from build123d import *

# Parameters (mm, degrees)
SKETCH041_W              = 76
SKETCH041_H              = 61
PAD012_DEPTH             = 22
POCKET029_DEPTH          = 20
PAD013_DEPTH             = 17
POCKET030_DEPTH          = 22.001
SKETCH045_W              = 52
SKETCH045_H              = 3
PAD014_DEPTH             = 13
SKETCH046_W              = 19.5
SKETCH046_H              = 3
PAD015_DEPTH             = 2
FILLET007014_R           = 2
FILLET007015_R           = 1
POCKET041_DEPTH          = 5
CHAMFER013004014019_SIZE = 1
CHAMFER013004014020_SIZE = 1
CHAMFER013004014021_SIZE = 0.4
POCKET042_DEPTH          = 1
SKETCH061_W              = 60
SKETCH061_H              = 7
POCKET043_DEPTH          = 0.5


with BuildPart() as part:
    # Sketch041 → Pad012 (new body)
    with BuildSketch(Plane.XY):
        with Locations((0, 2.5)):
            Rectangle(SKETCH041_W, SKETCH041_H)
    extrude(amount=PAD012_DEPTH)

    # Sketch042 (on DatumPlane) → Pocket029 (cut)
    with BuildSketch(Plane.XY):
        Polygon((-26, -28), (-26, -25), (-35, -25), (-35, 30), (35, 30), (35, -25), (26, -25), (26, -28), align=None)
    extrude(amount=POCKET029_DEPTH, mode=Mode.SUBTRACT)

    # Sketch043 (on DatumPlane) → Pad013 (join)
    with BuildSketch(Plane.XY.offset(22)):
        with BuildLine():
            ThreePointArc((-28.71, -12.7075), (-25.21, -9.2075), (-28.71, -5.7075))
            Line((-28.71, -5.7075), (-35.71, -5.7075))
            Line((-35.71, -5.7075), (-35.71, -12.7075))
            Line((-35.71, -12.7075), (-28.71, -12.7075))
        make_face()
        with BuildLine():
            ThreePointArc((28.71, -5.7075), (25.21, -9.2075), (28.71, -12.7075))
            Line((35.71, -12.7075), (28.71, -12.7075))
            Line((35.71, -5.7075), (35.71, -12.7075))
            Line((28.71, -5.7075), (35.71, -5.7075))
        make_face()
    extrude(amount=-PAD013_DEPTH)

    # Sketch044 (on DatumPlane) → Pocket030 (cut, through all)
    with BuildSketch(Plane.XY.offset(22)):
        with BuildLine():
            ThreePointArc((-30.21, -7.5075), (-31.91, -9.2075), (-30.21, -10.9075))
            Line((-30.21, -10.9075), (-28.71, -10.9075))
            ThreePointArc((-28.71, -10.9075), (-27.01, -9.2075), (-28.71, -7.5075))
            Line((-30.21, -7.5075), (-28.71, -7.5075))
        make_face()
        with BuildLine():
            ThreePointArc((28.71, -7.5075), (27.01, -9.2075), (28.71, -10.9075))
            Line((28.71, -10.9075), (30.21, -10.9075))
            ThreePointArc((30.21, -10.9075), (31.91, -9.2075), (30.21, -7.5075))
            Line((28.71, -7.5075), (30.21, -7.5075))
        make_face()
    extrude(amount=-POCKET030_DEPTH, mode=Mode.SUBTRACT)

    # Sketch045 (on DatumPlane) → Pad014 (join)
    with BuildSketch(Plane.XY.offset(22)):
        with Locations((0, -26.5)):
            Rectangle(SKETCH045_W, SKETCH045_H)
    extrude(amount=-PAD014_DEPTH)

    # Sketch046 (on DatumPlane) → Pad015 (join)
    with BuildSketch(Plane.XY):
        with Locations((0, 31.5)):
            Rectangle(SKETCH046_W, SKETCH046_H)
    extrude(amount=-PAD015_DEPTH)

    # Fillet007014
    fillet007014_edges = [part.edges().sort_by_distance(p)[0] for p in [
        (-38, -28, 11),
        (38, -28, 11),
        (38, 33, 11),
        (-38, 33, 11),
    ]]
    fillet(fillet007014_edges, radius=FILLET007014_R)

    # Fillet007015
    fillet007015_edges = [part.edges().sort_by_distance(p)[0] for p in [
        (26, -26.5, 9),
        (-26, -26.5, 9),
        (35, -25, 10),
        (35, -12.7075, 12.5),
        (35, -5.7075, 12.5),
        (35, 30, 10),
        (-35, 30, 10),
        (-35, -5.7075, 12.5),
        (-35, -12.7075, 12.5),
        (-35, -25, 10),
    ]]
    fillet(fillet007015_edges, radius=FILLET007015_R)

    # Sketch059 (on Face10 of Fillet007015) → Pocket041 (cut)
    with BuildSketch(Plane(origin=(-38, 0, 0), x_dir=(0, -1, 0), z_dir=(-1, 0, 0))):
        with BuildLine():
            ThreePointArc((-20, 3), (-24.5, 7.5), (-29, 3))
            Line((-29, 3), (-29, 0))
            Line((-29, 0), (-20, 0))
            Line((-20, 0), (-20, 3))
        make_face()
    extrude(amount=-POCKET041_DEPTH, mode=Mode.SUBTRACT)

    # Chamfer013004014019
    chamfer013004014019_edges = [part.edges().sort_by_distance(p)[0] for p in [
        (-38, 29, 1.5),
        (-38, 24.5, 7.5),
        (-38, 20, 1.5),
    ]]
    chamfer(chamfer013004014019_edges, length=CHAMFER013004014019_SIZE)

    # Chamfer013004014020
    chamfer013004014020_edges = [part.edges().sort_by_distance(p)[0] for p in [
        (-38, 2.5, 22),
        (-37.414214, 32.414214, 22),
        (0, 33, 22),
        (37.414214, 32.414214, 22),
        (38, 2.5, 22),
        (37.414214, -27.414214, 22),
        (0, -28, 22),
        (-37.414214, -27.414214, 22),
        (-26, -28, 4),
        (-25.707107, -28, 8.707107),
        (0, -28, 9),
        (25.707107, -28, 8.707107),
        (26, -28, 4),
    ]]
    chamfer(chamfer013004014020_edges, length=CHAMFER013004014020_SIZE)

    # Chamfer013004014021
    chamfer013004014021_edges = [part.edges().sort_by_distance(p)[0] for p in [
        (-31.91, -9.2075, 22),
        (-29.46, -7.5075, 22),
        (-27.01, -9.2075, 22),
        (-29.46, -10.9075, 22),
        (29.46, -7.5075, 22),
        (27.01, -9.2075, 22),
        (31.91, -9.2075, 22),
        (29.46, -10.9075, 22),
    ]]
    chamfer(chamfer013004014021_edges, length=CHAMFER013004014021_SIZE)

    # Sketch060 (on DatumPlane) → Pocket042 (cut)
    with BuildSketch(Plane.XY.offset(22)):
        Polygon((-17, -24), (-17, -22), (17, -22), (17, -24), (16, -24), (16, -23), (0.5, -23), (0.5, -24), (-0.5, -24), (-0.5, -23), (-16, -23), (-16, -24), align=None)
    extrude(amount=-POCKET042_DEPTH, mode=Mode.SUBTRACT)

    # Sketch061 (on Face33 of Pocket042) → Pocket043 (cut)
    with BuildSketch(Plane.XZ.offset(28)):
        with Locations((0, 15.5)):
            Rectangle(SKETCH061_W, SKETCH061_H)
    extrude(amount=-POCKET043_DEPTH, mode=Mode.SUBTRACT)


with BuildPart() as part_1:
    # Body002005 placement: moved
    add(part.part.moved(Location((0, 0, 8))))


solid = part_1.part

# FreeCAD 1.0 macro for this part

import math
import FreeCAD as App
import Part
import Sketcher
from FreeCAD import Vector
Q = App.Units.Quantity


def edges_at(feature, points):
    """Names of the edges that pass closest to the given points."""
    edges = feature.Shape.Edges
    near = lambda p: min(range(len(edges)), key=lambda i: edges[i].distToShape(Part.Vertex(*p))[0])
    return sorted({f"Edge{near(p) + 1}" for p in points})

doc = App.newDocument("Part")
body = doc.addObject("PartDesign::Body", "Body")

# Sketch on XY plane
sketch1 = body.newObject("Sketcher::SketchObject", "Sketch")
sketch1.AttachmentSupport = (doc.getObject("XY_Plane"), [""])
sketch1.MapMode = "FlatFace"
sketch1.addGeometry([
    Part.LineSegment(Vector(-38, 33, 0), Vector(-38, -28, 0)),
    Part.LineSegment(Vector(-38, -28, 0), Vector(38, -28, 0)),
    Part.LineSegment(Vector(38, -28, 0), Vector(38, 33, 0)),
    Part.LineSegment(Vector(38, 33, 0), Vector(-38, 33, 0)),
], False)
sketch1.addConstraint([
    Sketcher.Constraint("Coincident", 0, 2, 1, 1),
    Sketcher.Constraint("Coincident", 1, 2, 2, 1),
    Sketcher.Constraint("Coincident", 2, 2, 3, 1),
    Sketcher.Constraint("Coincident", 3, 2, 0, 1),
    Sketcher.Constraint("Vertical", 0),
    Sketcher.Constraint("Horizontal", 1),
    Sketcher.Constraint("Vertical", 2),
    Sketcher.Constraint("Horizontal", 3),
    Sketcher.Constraint("DistanceX", 1, 1, 1, 2, Q("76 mm")),
    Sketcher.Constraint("DistanceY", 0, 2, 0, 1, Q("61 mm")),
    Sketcher.Constraint("DistanceX", 0, 2, -1, 1, Q("38 mm")),
    Sketcher.Constraint("DistanceY", 0, 2, -1, 1, Q("28 mm")),
])
pad1 = body.newObject("PartDesign::Pad", "Pad")
pad1.Profile = sketch1
pad1.Length = 22

# Sketch on XY plane
sketch2 = body.newObject("Sketcher::SketchObject", "Sketch001")
sketch2.AttachmentSupport = (doc.getObject("XY_Plane"), [""])
sketch2.MapMode = "FlatFace"
sketch2.addGeometry([
    Part.LineSegment(Vector(-26, -25, 0), Vector(-26, -28, 0)),  # 0
    Part.LineSegment(Vector(-26, -28, 0), Vector(26, -28, 0)),  # 1
    Part.LineSegment(Vector(26, -28, 0), Vector(26, -25, 0)),  # 2
    Part.LineSegment(Vector(26, -25, 0), Vector(35, -25, 0)),  # 3
    Part.LineSegment(Vector(35, -25, 0), Vector(35, 30, 0)),  # 4
    Part.LineSegment(Vector(35, 30, 0), Vector(-35, 30, 0)),  # 5
    Part.LineSegment(Vector(-35, 30, 0), Vector(-35, -25, 0)),  # 6
    Part.LineSegment(Vector(-35, -25, 0), Vector(-26, -25, 0)),  # 7
], False)
sketch2.addConstraint([
    Sketcher.Constraint("Coincident", 0, 2, 1, 1),
    Sketcher.Constraint("Coincident", 1, 2, 2, 1),
    Sketcher.Constraint("Coincident", 2, 2, 3, 1),
    Sketcher.Constraint("Coincident", 3, 2, 4, 1),
    Sketcher.Constraint("Coincident", 4, 2, 5, 1),
    Sketcher.Constraint("Coincident", 5, 2, 6, 1),
    Sketcher.Constraint("Coincident", 6, 2, 7, 1),
    Sketcher.Constraint("Coincident", 7, 2, 0, 1),
    Sketcher.Constraint("Vertical", 0),
    Sketcher.Constraint("Horizontal", 1),
    Sketcher.Constraint("Vertical", 2),
    Sketcher.Constraint("Horizontal", 3),
    Sketcher.Constraint("Vertical", 4),
    Sketcher.Constraint("Horizontal", 5),
    Sketcher.Constraint("Vertical", 6),
    Sketcher.Constraint("Horizontal", 7),
    Sketcher.Constraint("Symmetric", 3, 2, 6, 2, -2),
    Sketcher.Constraint("Equal", 3, 7),
    Sketcher.Constraint("DistanceX", 1, 1, 1, 2, Q("52 mm")),
    Sketcher.Constraint("DistanceX", 3, 1, 3, 2, Q("9 mm")),
    Sketcher.Constraint("DistanceY", 0, 2, 0, 1, Q("3 mm")),
    Sketcher.Constraint("DistanceY", 4, 1, 4, 2, Q("55 mm")),
    Sketcher.Constraint("DistanceY", 0, 2, -1, 1, Q("28 mm")),
])
pocket1 = body.newObject("PartDesign::Pocket", "Pocket")
pocket1.Profile = sketch2
pocket1.Length = 20
pocket1.Reversed = True

# Sketch on XY plane
sketch3 = body.newObject("Sketcher::SketchObject", "Sketch002")
sketch3.AttachmentSupport = (doc.getObject("XY_Plane"), [""])
sketch3.MapMode = "FlatFace"
sketch3.AttachmentOffset = App.Placement(Vector(0, 0, 22), App.Rotation())
sketch3.addGeometry([
    Part.ArcOfCircle(Part.Circle(Vector(-28.7, -9.2, 0), Vector(0, 0, 1), 3.5), math.radians(-90), math.radians(90)),  # 0
    Part.LineSegment(Vector(-28.7, -5.7, 0), Vector(-35.7, -5.7, 0)),  # 1
    Part.LineSegment(Vector(-35.7, -5.7, 0), Vector(-35.7, -12.7, 0)),  # 2
    Part.LineSegment(Vector(-35.7, -12.7, 0), Vector(-28.7, -12.7, 0)),  # 3
    Part.ArcOfCircle(Part.Circle(Vector(28.7, -9.2, 0), Vector(0, 0, 1), 3.5), math.radians(90), math.radians(270)),  # 4
    Part.LineSegment(Vector(28.7, -12.7, 0), Vector(35.7, -12.7, 0)),  # 5
    Part.LineSegment(Vector(35.7, -12.7, 0), Vector(35.7, -5.7, 0)),  # 6
    Part.LineSegment(Vector(35.7, -5.7, 0), Vector(28.7, -5.7, 0)),  # 7
], False)
sketch3.addConstraint([
    Sketcher.Constraint("Tangent", 0, 2, 1, 1),
    Sketcher.Constraint("Coincident", 1, 2, 2, 1),
    Sketcher.Constraint("Coincident", 2, 2, 3, 1),
    Sketcher.Constraint("Tangent", 3, 2, 0, 1),
    Sketcher.Constraint("Tangent", 4, 2, 5, 1),
    Sketcher.Constraint("Coincident", 5, 2, 6, 1),
    Sketcher.Constraint("Coincident", 6, 2, 7, 1),
    Sketcher.Constraint("Tangent", 7, 2, 4, 1),
    Sketcher.Constraint("Horizontal", 1),
    Sketcher.Constraint("Vertical", 2),
    Sketcher.Constraint("Horizontal", 3),
    Sketcher.Constraint("Horizontal", 5),
    Sketcher.Constraint("Vertical", 6),
    Sketcher.Constraint("Horizontal", 7),
    Sketcher.Constraint("Equal", 0, 4),
    Sketcher.Constraint("Symmetric", 0, 3, 4, 3, -2),
    Sketcher.Constraint("Equal", 3, 5),
    Sketcher.Constraint("Equal", 7, 2),
    Sketcher.Constraint("Radius", 0, Q("3.5 mm")),
    Sketcher.Constraint("DistanceX", 0, 3, -1, 1, Q("28.71 mm")),
    Sketcher.Constraint("DistanceY", 0, 3, -1, 1, Q("9.2075 mm")),
])
pad2 = body.newObject("PartDesign::Pad", "Pad001")
pad2.Profile = sketch3
pad2.Length = 17
pad2.Reversed = True

# Sketch on XY plane
sketch4 = body.newObject("Sketcher::SketchObject", "Sketch003")
sketch4.AttachmentSupport = (doc.getObject("XY_Plane"), [""])
sketch4.MapMode = "FlatFace"
sketch4.AttachmentOffset = App.Placement(Vector(0, 0, 22), App.Rotation())
sketch4.addGeometry([
    Part.ArcOfCircle(Part.Circle(Vector(-30.2, -9.2, 0), Vector(0, 0, 1), 1.7), math.radians(90), math.radians(270)),  # 0
    Part.LineSegment(Vector(-30.2, -10.9, 0), Vector(-28.7, -10.9, 0)),  # 1
    Part.ArcOfCircle(Part.Circle(Vector(-28.7, -9.2, 0), Vector(0, 0, 1), 1.7), math.radians(-90), math.radians(90)),  # 2
    Part.LineSegment(Vector(-28.7, -7.5, 0), Vector(-30.2, -7.5, 0)),  # 3
    Part.ArcOfCircle(Part.Circle(Vector(28.7, -9.2, 0), Vector(0, 0, 1), 1.7), math.radians(90), math.radians(270)),  # 4
    Part.LineSegment(Vector(28.7, -10.9, 0), Vector(30.2, -10.9, 0)),  # 5
    Part.ArcOfCircle(Part.Circle(Vector(30.2, -9.2, 0), Vector(0, 0, 1), 1.7), math.radians(-90), math.radians(90)),  # 6
    Part.LineSegment(Vector(30.2, -7.5, 0), Vector(28.7, -7.5, 0)),  # 7
], False)
sketch4.addConstraint([
    Sketcher.Constraint("Tangent", 0, 2, 1, 1),
    Sketcher.Constraint("Tangent", 1, 2, 2, 1),
    Sketcher.Constraint("Tangent", 2, 2, 3, 1),
    Sketcher.Constraint("Tangent", 3, 2, 0, 1),
    Sketcher.Constraint("Tangent", 4, 2, 5, 1),
    Sketcher.Constraint("Tangent", 5, 2, 6, 1),
    Sketcher.Constraint("Tangent", 6, 2, 7, 1),
    Sketcher.Constraint("Tangent", 7, 2, 4, 1),
    Sketcher.Constraint("Horizontal", 1),
    Sketcher.Constraint("Horizontal", 3),
    Sketcher.Constraint("Horizontal", 5),
    Sketcher.Constraint("Horizontal", 7),
    Sketcher.Constraint("Equal", 2, 4),
    Sketcher.Constraint("Symmetric", 2, 3, 4, 3, -2),
    Sketcher.Constraint("Equal", 3, 5),
    Sketcher.Constraint("Radius", 0, Q("1.7 mm")),
    Sketcher.Constraint("DistanceX", 1, 1, 1, 2, Q("1.5 mm")),
    Sketcher.Constraint("DistanceX", 0, 3, -1, 1, Q("30.21 mm")),
    Sketcher.Constraint("DistanceY", 0, 3, -1, 1, Q("9.2075 mm")),
])
pocket2 = body.newObject("PartDesign::Pocket", "Pocket001")
pocket2.Profile = sketch4
pocket2.Type = "ThroughAll"

# Sketch on XY plane
sketch5 = body.newObject("Sketcher::SketchObject", "Sketch004")
sketch5.AttachmentSupport = (doc.getObject("XY_Plane"), [""])
sketch5.MapMode = "FlatFace"
sketch5.AttachmentOffset = App.Placement(Vector(0, 0, 22), App.Rotation())
sketch5.addGeometry([
    Part.LineSegment(Vector(-26, -25, 0), Vector(-26, -28, 0)),
    Part.LineSegment(Vector(-26, -28, 0), Vector(26, -28, 0)),
    Part.LineSegment(Vector(26, -28, 0), Vector(26, -25, 0)),
    Part.LineSegment(Vector(26, -25, 0), Vector(-26, -25, 0)),
], False)
sketch5.addConstraint([
    Sketcher.Constraint("Coincident", 0, 2, 1, 1),
    Sketcher.Constraint("Coincident", 1, 2, 2, 1),
    Sketcher.Constraint("Coincident", 2, 2, 3, 1),
    Sketcher.Constraint("Coincident", 3, 2, 0, 1),
    Sketcher.Constraint("Vertical", 0),
    Sketcher.Constraint("Horizontal", 1),
    Sketcher.Constraint("Vertical", 2),
    Sketcher.Constraint("Horizontal", 3),
    Sketcher.Constraint("DistanceX", 1, 1, 1, 2, Q("52 mm")),
    Sketcher.Constraint("DistanceY", 0, 2, 0, 1, Q("3 mm")),
    Sketcher.Constraint("DistanceX", 0, 2, -1, 1, Q("26 mm")),
    Sketcher.Constraint("DistanceY", 0, 2, -1, 1, Q("28 mm")),
])
pad3 = body.newObject("PartDesign::Pad", "Pad002")
pad3.Profile = sketch5
pad3.Length = 13
pad3.Reversed = True

# Sketch on XY plane
sketch6 = body.newObject("Sketcher::SketchObject", "Sketch005")
sketch6.AttachmentSupport = (doc.getObject("XY_Plane"), [""])
sketch6.MapMode = "FlatFace"
sketch6.addGeometry([
    Part.LineSegment(Vector(-9.8, 33, 0), Vector(-9.8, 30, 0)),
    Part.LineSegment(Vector(-9.8, 30, 0), Vector(9.8, 30, 0)),
    Part.LineSegment(Vector(9.8, 30, 0), Vector(9.8, 33, 0)),
    Part.LineSegment(Vector(9.8, 33, 0), Vector(-9.8, 33, 0)),
], False)
sketch6.addConstraint([
    Sketcher.Constraint("Coincident", 0, 2, 1, 1),
    Sketcher.Constraint("Coincident", 1, 2, 2, 1),
    Sketcher.Constraint("Coincident", 2, 2, 3, 1),
    Sketcher.Constraint("Coincident", 3, 2, 0, 1),
    Sketcher.Constraint("Vertical", 0),
    Sketcher.Constraint("Horizontal", 1),
    Sketcher.Constraint("Vertical", 2),
    Sketcher.Constraint("Horizontal", 3),
    Sketcher.Constraint("DistanceY", 0, 2, 0, 1, Q("3 mm")),
    Sketcher.Constraint("DistanceX", 1, 1, 1, 2, Q("19.5 mm")),
    Sketcher.Constraint("DistanceY", -1, 1, 0, 2, Q("30 mm")),
    Sketcher.Constraint("DistanceX", 0, 2, -1, 1, Q("9.75 mm")),
])
pad4 = body.newObject("PartDesign::Pad", "Pad003")
pad4.Profile = sketch6
pad4.Length = 2
pad4.Reversed = True
doc.recompute()

fillet = body.newObject("PartDesign::Fillet", "Fillet")
fillet.Base = (pad4, edges_at(pad4, [
    (-38, -28, 11),
    (38, -28, 11),
    (38, 33, 11),
    (-38, 33, 11),
]))
fillet.Radius = 2
doc.recompute()

fillet2 = body.newObject("PartDesign::Fillet", "Fillet001")
fillet2.Base = (fillet, edges_at(fillet, [
    (26, -26.5, 9),
    (-26, -26.5, 9),
    (35, -25, 10),
    (35, -12.707, 12.5),
    (35, -5.707, 12.5),
    (35, 30, 10),
    (-35, 30, 10),
    (-35, -5.707, 12.5),
    (-35, -12.707, 12.5),
    (-35, -25, 10),
]))
fillet2.Radius = 1

# Sketch on YZ plane
sketch7 = body.newObject("Sketcher::SketchObject", "Sketch006")
sketch7.AttachmentSupport = (doc.getObject("YZ_Plane"), [""])
sketch7.MapMode = "FlatFace"
sketch7.AttachmentOffset = App.Placement(Vector(0, 0, -38), App.Rotation())
sketch7.addGeometry([
    Part.ArcOfCircle(Part.Circle(Vector(24.5, 3, 0), Vector(0, 0, 1), 4.5), math.radians(0), math.radians(180)),
    Part.LineSegment(Vector(29, 3, 0), Vector(29, 0, 0)),
    Part.LineSegment(Vector(29, 0, 0), Vector(20, 0, 0)),
    Part.LineSegment(Vector(20, 0, 0), Vector(20, 3, 0)),
], False)
sketch7.addConstraint([
    Sketcher.Constraint("Tangent", 0, 1, 1, 1),
    Sketcher.Constraint("Coincident", 1, 2, 2, 1),
    Sketcher.Constraint("Coincident", 2, 2, 3, 1),
    Sketcher.Constraint("Tangent", 3, 2, 0, 2),
    Sketcher.Constraint("Vertical", 1),
    Sketcher.Constraint("Horizontal", 2),
    Sketcher.Constraint("Vertical", 3),
    Sketcher.Constraint("PointOnObject", 1, 2, -1),
    Sketcher.Constraint("Radius", 0, Q("4.5 mm")),
    Sketcher.Constraint("DistanceY", 1, 2, 1, 1, Q("3 mm")),
    Sketcher.Constraint("DistanceX", -1, 1, 0, 1, Q("29 mm")),
])
pocket3 = body.newObject("PartDesign::Pocket", "Pocket002")
pocket3.Profile = sketch7
pocket3.Length = 5
pocket3.Reversed = True
doc.recompute()

chamfer = body.newObject("PartDesign::Chamfer", "Chamfer")
chamfer.Base = (pocket3, edges_at(pocket3, [(-38, 29, 1.5), (-38, 24.5, 7.5), (-38, 20, 1.5)]))
chamfer.Size = 1
doc.recompute()

chamfer2 = body.newObject("PartDesign::Chamfer", "Chamfer001")
chamfer2.Base = (chamfer, edges_at(chamfer, [
    (-38, 2.5, 22),
    (-37.414, 32.414, 22),
    (0, 33, 22),
    (37.414, 32.414, 22),
    (38, 2.5, 22),
    (37.414, -27.414, 22),
    (0, -28, 22),
    (-37.414, -27.414, 22),
    (-26, -28, 4),
    (-25.707, -28, 8.707),
    (0, -28, 9),
    (25.707, -28, 8.707),
    (26, -28, 4),
]))
chamfer2.Size = 1
doc.recompute()

chamfer3 = body.newObject("PartDesign::Chamfer", "Chamfer002")
chamfer3.Base = (chamfer2, edges_at(chamfer2, [
    (-31.91, -9.207, 22),
    (-29.46, -7.508, 22),
    (-27.01, -9.207, 22),
    (-29.46, -10.908, 22),
    (29.46, -7.508, 22),
    (27.01, -9.207, 22),
    (31.91, -9.207, 22),
    (29.46, -10.908, 22),
]))
chamfer3.Size = 0.4

# Sketch on XY plane
sketch8 = body.newObject("Sketcher::SketchObject", "Sketch007")
sketch8.AttachmentSupport = (doc.getObject("XY_Plane"), [""])
sketch8.MapMode = "FlatFace"
sketch8.AttachmentOffset = App.Placement(Vector(0, 0, 22), App.Rotation())
sketch8.addGeometry([
    Part.LineSegment(Vector(-17, -22, 0), Vector(-17, -24, 0)),  # 0
    Part.LineSegment(Vector(-17, -24, 0), Vector(-16, -24, 0)),  # 1
    Part.LineSegment(Vector(-16, -24, 0), Vector(-16, -23, 0)),  # 2
    Part.LineSegment(Vector(-16, -23, 0), Vector(-0.5, -23, 0)),  # 3
    Part.LineSegment(Vector(-0.5, -23, 0), Vector(-0.5, -24, 0)),  # 4
    Part.LineSegment(Vector(-0.5, -24, 0), Vector(0.5, -24, 0)),  # 5
    Part.LineSegment(Vector(0.5, -24, 0), Vector(0.5, -23, 0)),  # 6
    Part.LineSegment(Vector(0.5, -23, 0), Vector(16, -23, 0)),  # 7
    Part.LineSegment(Vector(16, -23, 0), Vector(16, -24, 0)),  # 8
    Part.LineSegment(Vector(16, -24, 0), Vector(17, -24, 0)),  # 9
    Part.LineSegment(Vector(17, -24, 0), Vector(17, -22, 0)),  # 10
    Part.LineSegment(Vector(17, -22, 0), Vector(-17, -22, 0)),  # 11
], False)
sketch8.addConstraint([
    Sketcher.Constraint("Coincident", 0, 2, 1, 1),
    Sketcher.Constraint("Coincident", 1, 2, 2, 1),
    Sketcher.Constraint("Coincident", 2, 2, 3, 1),
    Sketcher.Constraint("Coincident", 3, 2, 4, 1),
    Sketcher.Constraint("Coincident", 4, 2, 5, 1),
    Sketcher.Constraint("Coincident", 5, 2, 6, 1),
    Sketcher.Constraint("Coincident", 6, 2, 7, 1),
    Sketcher.Constraint("Coincident", 7, 2, 8, 1),
    Sketcher.Constraint("Coincident", 8, 2, 9, 1),
    Sketcher.Constraint("Coincident", 9, 2, 10, 1),
    Sketcher.Constraint("Coincident", 10, 2, 11, 1),
    Sketcher.Constraint("Coincident", 11, 2, 0, 1),
    Sketcher.Constraint("Vertical", 0),
    Sketcher.Constraint("Horizontal", 1),
    Sketcher.Constraint("Vertical", 2),
    Sketcher.Constraint("Horizontal", 3),
    Sketcher.Constraint("Vertical", 4),
    Sketcher.Constraint("Horizontal", 5),
    Sketcher.Constraint("Vertical", 6),
    Sketcher.Constraint("Horizontal", 7),
    Sketcher.Constraint("Vertical", 8),
    Sketcher.Constraint("Horizontal", 9),
    Sketcher.Constraint("Vertical", 10),
    Sketcher.Constraint("Horizontal", 11),
    Sketcher.Constraint("Symmetric", 3, 2, 6, 2, -2),
    Sketcher.Constraint("Symmetric", 1, 2, 8, 2, -2),
    Sketcher.Constraint("Horizontal", 1, 2, 4, 2),
    Sketcher.Constraint("Equal", 1, 5),
    Sketcher.Constraint("Equal", 5, 9),
    Sketcher.Constraint("Equal", 9, 2),
    Sketcher.Constraint("DistanceX", 1, 1, 1, 2, Q("1 mm")),
    Sketcher.Constraint("DistanceX", 11, 2, 11, 1, Q("34 mm")),
    Sketcher.Constraint("DistanceY", 0, 2, 0, 1, Q("2 mm")),
    Sketcher.Constraint("DistanceY", 0, 2, -1, 1, Q("24 mm")),
])
pocket4 = body.newObject("PartDesign::Pocket", "Pocket003")
pocket4.Profile = sketch8
pocket4.Length = 1

# Sketch on XZ plane
sketch9 = body.newObject("Sketcher::SketchObject", "Sketch008")
sketch9.AttachmentSupport = (doc.getObject("XZ_Plane"), [""])
sketch9.MapMode = "FlatFace"
sketch9.AttachmentOffset = App.Placement(Vector(0, 0, 28), App.Rotation())
sketch9.addGeometry([
    Part.LineSegment(Vector(-30, 19, 0), Vector(-30, 12, 0)),
    Part.LineSegment(Vector(-30, 12, 0), Vector(30, 12, 0)),
    Part.LineSegment(Vector(30, 12, 0), Vector(30, 19, 0)),
    Part.LineSegment(Vector(30, 19, 0), Vector(-30, 19, 0)),
], False)
sketch9.addConstraint([
    Sketcher.Constraint("Coincident", 0, 2, 1, 1),
    Sketcher.Constraint("Coincident", 1, 2, 2, 1),
    Sketcher.Constraint("Coincident", 2, 2, 3, 1),
    Sketcher.Constraint("Coincident", 3, 2, 0, 1),
    Sketcher.Constraint("Vertical", 0),
    Sketcher.Constraint("Horizontal", 1),
    Sketcher.Constraint("Vertical", 2),
    Sketcher.Constraint("Horizontal", 3),
    Sketcher.Constraint("DistanceX", 1, 1, 1, 2, Q("60 mm")),
    Sketcher.Constraint("DistanceY", 0, 2, 0, 1, Q("7 mm")),
    Sketcher.Constraint("DistanceX", 0, 2, -1, 1, Q("30 mm")),
    Sketcher.Constraint("DistanceY", -1, 1, 0, 2, Q("12 mm")),
])
pocket5 = body.newObject("PartDesign::Pocket", "Pocket004")
pocket5.Profile = sketch9
pocket5.Length = 0.5
body2 = doc.addObject("PartDesign::Body", "Body001")
doc.recompute()

body.Placement = App.Placement(Vector(0, 0, 8), App.Rotation(Vector(0, 0, 1), 0))
boolean = body2.newObject("PartDesign::Boolean", "Boolean")
boolean.Type = "Fuse"
boolean.addObjects([body])

doc.recompute()
